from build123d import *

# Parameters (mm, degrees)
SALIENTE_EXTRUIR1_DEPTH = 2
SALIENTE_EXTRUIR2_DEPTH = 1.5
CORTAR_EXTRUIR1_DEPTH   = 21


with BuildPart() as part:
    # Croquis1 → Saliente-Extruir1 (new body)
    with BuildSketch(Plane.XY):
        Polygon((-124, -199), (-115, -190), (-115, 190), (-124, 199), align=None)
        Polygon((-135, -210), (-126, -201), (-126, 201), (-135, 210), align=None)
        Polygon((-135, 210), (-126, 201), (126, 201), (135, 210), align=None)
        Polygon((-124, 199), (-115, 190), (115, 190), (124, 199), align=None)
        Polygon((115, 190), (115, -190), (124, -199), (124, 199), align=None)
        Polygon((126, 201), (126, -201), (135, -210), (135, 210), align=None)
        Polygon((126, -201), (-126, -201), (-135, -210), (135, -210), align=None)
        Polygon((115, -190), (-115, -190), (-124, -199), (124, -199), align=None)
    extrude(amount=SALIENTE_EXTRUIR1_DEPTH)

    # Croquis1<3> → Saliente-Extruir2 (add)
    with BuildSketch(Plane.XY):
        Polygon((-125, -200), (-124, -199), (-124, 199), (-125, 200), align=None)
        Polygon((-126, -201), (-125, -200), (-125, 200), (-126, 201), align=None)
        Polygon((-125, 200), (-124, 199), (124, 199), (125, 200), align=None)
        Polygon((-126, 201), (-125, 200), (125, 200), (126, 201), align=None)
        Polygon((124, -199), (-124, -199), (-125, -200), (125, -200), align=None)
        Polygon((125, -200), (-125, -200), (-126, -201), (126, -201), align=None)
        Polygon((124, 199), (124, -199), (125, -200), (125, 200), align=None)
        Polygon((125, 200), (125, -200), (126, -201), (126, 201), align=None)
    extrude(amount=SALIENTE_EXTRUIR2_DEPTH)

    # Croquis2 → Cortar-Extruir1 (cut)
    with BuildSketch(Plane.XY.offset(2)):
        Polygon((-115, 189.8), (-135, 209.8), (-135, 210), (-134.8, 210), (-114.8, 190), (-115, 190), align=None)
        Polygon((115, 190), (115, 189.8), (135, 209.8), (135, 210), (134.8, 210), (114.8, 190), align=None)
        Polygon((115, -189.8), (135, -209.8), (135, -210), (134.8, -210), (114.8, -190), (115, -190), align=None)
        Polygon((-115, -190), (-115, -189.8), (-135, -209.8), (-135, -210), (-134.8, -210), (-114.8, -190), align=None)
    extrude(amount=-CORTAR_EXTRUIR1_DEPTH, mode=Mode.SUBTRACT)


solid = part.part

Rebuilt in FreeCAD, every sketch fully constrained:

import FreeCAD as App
import Part
import Sketcher
from FreeCAD import Vector


def add_polygon(sketch, points):
    """Adds a closed chain of lines whose ends are joined by coincident constraints."""
    first, n = sketch.GeometryCount, len(points)
    for a, b in zip(points, points[1:] + points[:1]):
        sketch.addGeometry(Part.LineSegment(App.Vector(*a, 0), App.Vector(*b, 0)), False)
    for i in range(n):
        sketch.addConstraint(Sketcher.Constraint("Coincident", first + i, 2, first + (i + 1) % n, 1))

doc = App.newDocument("Part")
body = doc.addObject("PartDesign::Body", "Body")
body.AllowCompound = True

# Sketch on XY plane
sketch1 = doc.addObject("Sketcher::SketchObject", "Sketch")
body.addObject(sketch1)
sketch1.AttachmentSupport = (doc.XY_Plane, [""])
sketch1.MapMode = "FlatFace"
add_polygon(sketch1, [(124, -199), (124, 199), (-124, 199), (-124, -199)])  # lines 0-3
add_polygon(sketch1, [(-115, -190), (-115, 190), (115, 190), (115, -190)])  # lines 4-7
add_polygon(sketch1, [(135, -210), (135, 210), (-135, 210), (-135, -210)])  # lines 8-11
add_polygon(sketch1, [(-126, -201), (-126, 201), (126, 201), (126, -201)])  # lines 12-15
sketch1.addConstraint(Sketcher.Constraint("Vertical", 0))
sketch1.addConstraint(Sketcher.Constraint("Horizontal", 1))
sketch1.addConstraint(Sketcher.Constraint("Vertical", 2))
sketch1.addConstraint(Sketcher.Constraint("Horizontal", 3))
sketch1.addConstraint(Sketcher.Constraint("Vertical", 4))
sketch1.addConstraint(Sketcher.Constraint("Horizontal", 5))
sketch1.addConstraint(Sketcher.Constraint("Vertical", 6))
sketch1.addConstraint(Sketcher.Constraint("Horizontal", 7))
sketch1.addConstraint(Sketcher.Constraint("Vertical", 8))
sketch1.addConstraint(Sketcher.Constraint("Horizontal", 9))
sketch1.addConstraint(Sketcher.Constraint("Vertical", 10))
sketch1.addConstraint(Sketcher.Constraint("Horizontal", 11))
sketch1.addConstraint(Sketcher.Constraint("Vertical", 12))
sketch1.addConstraint(Sketcher.Constraint("Horizontal", 13))
sketch1.addConstraint(Sketcher.Constraint("Vertical", 14))
sketch1.addConstraint(Sketcher.Constraint("Horizontal", 15))
sketch1.addConstraint(Sketcher.Constraint("Symmetric", 0, 2, 2, 2, -1, 1))
sketch1.addConstraint(Sketcher.Constraint("Symmetric", 4, 2, 6, 2, -1, 1))
sketch1.addConstraint(Sketcher.Constraint("Symmetric", 8, 2, 10, 2, -1, 1))
sketch1.addConstraint(Sketcher.Constraint("Symmetric", 12, 2, 14, 2, -1, 1))
sketch1.addConstraint(Sketcher.Constraint("DistanceX", 1, 2, 1, 1, 248.0))
sketch1.addConstraint(Sketcher.Constraint("DistanceX", 5, 1, 5, 2, 230.0))
sketch1.addConstraint(Sketcher.Constraint("DistanceX", 9, 2, 9, 1, 270.0))
sketch1.addConstraint(Sketcher.Constraint("DistanceX", 13, 1, 13, 2, 252.0))
sketch1.addConstraint(Sketcher.Constraint("DistanceY", 0, 1, 0, 2, 398.0))
sketch1.addConstraint(Sketcher.Constraint("DistanceY", 4, 1, 4, 2, 380.0))
sketch1.addConstraint(Sketcher.Constraint("DistanceY", 8, 1, 8, 2, 420.0))
sketch1.addConstraint(Sketcher.Constraint("DistanceY", 12, 1, 12, 2, 402.0))
pad1 = doc.addObject("PartDesign::Pad", "Pad")
body.addObject(pad1)
pad1.Profile = sketch1
pad1.Length = 2

# Sketch on XY plane
sketch2 = doc.addObject("Sketcher::SketchObject", "Sketch001")
body.addObject(sketch2)
sketch2.AttachmentSupport = (doc.XY_Plane, [""])
sketch2.MapMode = "FlatFace"
add_polygon(sketch2, [(126, 201), (-126, 201), (-126, -201), (126, -201)])  # lines 0-3
add_polygon(sketch2, [(-124, -199), (-124, 199), (124, 199), (124, -199)])  # lines 4-7
sketch2.addConstraint(Sketcher.Constraint("Horizontal", 0))
sketch2.addConstraint(Sketcher.Constraint("Vertical", 1))
sketch2.addConstraint(Sketcher.Constraint("Horizontal", 2))
sketch2.addConstraint(Sketcher.Constraint("Vertical", 3))
sketch2.addConstraint(Sketcher.Constraint("Vertical", 4))
sketch2.addConstraint(Sketcher.Constraint("Horizontal", 5))
sketch2.addConstraint(Sketcher.Constraint("Vertical", 6))
sketch2.addConstraint(Sketcher.Constraint("Horizontal", 7))
sketch2.addConstraint(Sketcher.Constraint("Symmetric", 0, 2, 2, 2, -1, 1))
sketch2.addConstraint(Sketcher.Constraint("Symmetric", 4, 2, 6, 2, -1, 1))
sketch2.addConstraint(Sketcher.Constraint("DistanceX", 0, 2, 0, 1, 252.0))
sketch2.addConstraint(Sketcher.Constraint("DistanceX", 5, 1, 5, 2, 248.0))
sketch2.addConstraint(Sketcher.Constraint("DistanceY", 1, 2, 1, 1, 402.0))
sketch2.addConstraint(Sketcher.Constraint("DistanceY", 4, 1, 4, 2, 398.0))
pad2 = doc.addObject("PartDesign::Pad", "Pad001")
body.addObject(pad2)
pad2.Profile = sketch2
pad2.Length = 1.5

# Sketch on XY plane
sketch3 = doc.addObject("Sketcher::SketchObject", "Sketch002")
body.addObject(sketch3)
sketch3.AttachmentSupport = (doc.XY_Plane, [""])
sketch3.MapMode = "FlatFace"
sketch3.AttachmentOffset = App.Placement(Vector(0, 0, 2), App.Rotation())
add_polygon(sketch3, [(-135, 209.8), (-115, 189.8), (-115, 190), (-114.8, 190), (-134.8, 210), (-135, 210)])  # lines 0-5
add_polygon(sketch3, [(115, 190), (115, 189.8), (135, 209.8), (135, 210), (134.8, 210), (114.8, 190)])  # lines 6-11
add_polygon(sketch3, [(135, -209.8), (115, -189.8), (115, -190), (114.8, -190), (134.8, -210), (135, -210)])  # lines 12-17
add_polygon(sketch3, [(-115, -190), (-115, -189.8), (-135, -209.8), (-135, -210), (-134.8, -210), (-114.8, -190)])  # lines 18-23
sketch3.addConstraint(Sketcher.Constraint("Vertical", 1))
sketch3.addConstraint(Sketcher.Constraint("Horizontal", 2))
sketch3.addConstraint(Sketcher.Constraint("Horizontal", 4))
sketch3.addConstraint(Sketcher.Constraint("Vertical", 5))
sketch3.addConstraint(Sketcher.Constraint("Vertical", 6))
sketch3.addConstraint(Sketcher.Constraint("Vertical", 8))
sketch3.addConstraint(Sketcher.Constraint("Horizontal", 9))
sketch3.addConstraint(Sketcher.Constraint("Horizontal", 11))
sketch3.addConstraint(Sketcher.Constraint("Vertical", 13))
sketch3.addConstraint(Sketcher.Constraint("Horizontal", 14))
sketch3.addConstraint(Sketcher.Constraint("Horizontal", 16))
sketch3.addConstraint(Sketcher.Constraint("Vertical", 17))
sketch3.addConstraint(Sketcher.Constraint("Vertical", 18))
sketch3.addConstraint(Sketcher.Constraint("Vertical", 20))
sketch3.addConstraint(Sketcher.Constraint("Horizontal", 21))
sketch3.addConstraint(Sketcher.Constraint("Horizontal", 23))
sketch3.addConstraint(Sketcher.Constraint("Symmetric", 0, 2, 12, 2, -1, 1))
sketch3.addConstraint(Sketcher.Constraint("Symmetric", 2, 2, 14, 2, -1, 1))
sketch3.addConstraint(Sketcher.Constraint("Symmetric", 3, 2, 15, 2, -1, 1))
sketch3.addConstraint(Sketcher.Constraint("Symmetric", 5, 2, 17, 2, -1, 1))
sketch3.addConstraint(Sketcher.Constraint("Symmetric", 6, 2, 18, 2, -1, 1))
sketch3.addConstraint(Sketcher.Constraint("Symmetric", 7, 2, 19, 2, -1, 1))
sketch3.addConstraint(Sketcher.Constraint("Symmetric", 9, 2, 21, 2, -1, 1))
sketch3.addConstraint(Sketcher.Constraint("Symmetric", 10, 2, 22, 2, -1, 1))
sketch3.addConstraint(Sketcher.Constraint("Symmetric", 0, 2, 6, 2, -2))
sketch3.addConstraint(Sketcher.Constraint("Symmetric", 5, 2, 7, 2, -2))
sketch3.addConstraint(Sketcher.Constraint("Symmetric", 3, 2, 9, 2, -2))
sketch3.addConstraint(Sketcher.Constraint("Symmetric", 2, 2, 10, 2, -2))
sketch3.addConstraint(Sketcher.Constraint("Parallel", 0, 3))
sketch3.addConstraint(Sketcher.Constraint("Perpendicular", 3, 7))
sketch3.addConstraint(Sketcher.Constraint("Equal", 2, 4))
sketch3.addConstraint(Sketcher.Constraint("Equal", 23, 1))
sketch3.addConstraint(Sketcher.Constraint("DistanceX", 2, 1, 2, 2, 0.2))
sketch3.addConstraint(Sketcher.Constraint("DistanceX", 0, 2, -1, 1, 115.0))
sketch3.addConstraint(Sketcher.Constraint("DistanceY", -1, 1, 1, 2, 190.0))
sketch3.addConstraint(Sketcher.Constraint("DistanceY", -1, 1, 3, 2, 210.0))
pocket1 = doc.addObject("PartDesign::Pocket", "Pocket")
body.addObject(pocket1)
pocket1.Profile = sketch3
pocket1.Length = 21

doc.recompute()
